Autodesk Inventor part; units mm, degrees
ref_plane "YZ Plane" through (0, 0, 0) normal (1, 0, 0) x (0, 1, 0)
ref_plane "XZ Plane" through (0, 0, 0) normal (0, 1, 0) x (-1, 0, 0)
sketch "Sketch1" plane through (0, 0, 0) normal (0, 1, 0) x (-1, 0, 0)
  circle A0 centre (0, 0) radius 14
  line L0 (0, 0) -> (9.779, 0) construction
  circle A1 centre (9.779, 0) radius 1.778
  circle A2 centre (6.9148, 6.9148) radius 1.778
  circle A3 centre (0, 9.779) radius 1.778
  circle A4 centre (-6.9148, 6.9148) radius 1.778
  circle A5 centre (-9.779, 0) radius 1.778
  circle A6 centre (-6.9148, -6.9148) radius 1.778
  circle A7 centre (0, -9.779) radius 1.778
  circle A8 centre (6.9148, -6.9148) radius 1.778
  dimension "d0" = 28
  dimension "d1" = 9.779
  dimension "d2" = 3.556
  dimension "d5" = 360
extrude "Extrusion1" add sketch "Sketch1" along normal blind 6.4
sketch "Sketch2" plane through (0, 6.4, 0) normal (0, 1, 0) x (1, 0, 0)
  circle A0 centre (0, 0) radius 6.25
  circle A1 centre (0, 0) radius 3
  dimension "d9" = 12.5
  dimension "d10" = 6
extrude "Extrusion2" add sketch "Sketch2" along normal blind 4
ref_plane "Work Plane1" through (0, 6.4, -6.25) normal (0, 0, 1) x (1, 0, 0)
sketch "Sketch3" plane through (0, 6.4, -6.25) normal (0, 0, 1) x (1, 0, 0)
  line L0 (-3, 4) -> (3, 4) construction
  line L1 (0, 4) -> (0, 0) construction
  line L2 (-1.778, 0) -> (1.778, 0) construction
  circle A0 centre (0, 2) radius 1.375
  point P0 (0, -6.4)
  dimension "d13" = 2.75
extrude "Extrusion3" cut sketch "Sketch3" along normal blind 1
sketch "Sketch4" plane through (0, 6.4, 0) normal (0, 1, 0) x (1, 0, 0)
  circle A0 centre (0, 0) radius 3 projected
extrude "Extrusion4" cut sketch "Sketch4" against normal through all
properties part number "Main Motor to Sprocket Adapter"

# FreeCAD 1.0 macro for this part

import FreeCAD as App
import Part
import Sketcher

V = App.Vector

doc = App.newDocument("Part")
body = doc.addObject("PartDesign::Body", "Body")

sketch1 = doc.addObject("Sketcher::SketchObject", "Sketch")
body.addObject(sketch1)
sketch1.AttachmentSupport = (doc.XZ_Plane, [""])
sketch1.MapMode = "FlatFace"
sketch1.addGeometry(Part.Circle(V(0, 0, 0), V(0, 0, 1), 14), False)
sketch1.addGeometry(Part.Circle(V(6.9, -6.9, 0), V(0, 0, 1), 1.8), False)
sketch1.addGeometry(Part.Circle(V(0, -9.8, 0), V(0, 0, 1), 1.8), False)
sketch1.addGeometry(Part.Circle(V(-6.9, -6.9, 0), V(0, 0, 1), 1.8), False)
sketch1.addGeometry(Part.Circle(V(9.8, 0, 0), V(0, 0, 1), 1.8), False)
sketch1.addGeometry(Part.Circle(V(6.9, 6.9, 0), V(0, 0, 1), 1.8), False)
sketch1.addGeometry(Part.Circle(V(-6.9, 6.9, 0), V(0, 0, 1), 1.8), False)
sketch1.addGeometry(Part.Circle(V(-9.8, 0, 0), V(0, 0, 1), 1.8), False)
sketch1.addGeometry(Part.Circle(V(0, 9.8, 0), V(0, 0, 1), 1.8), False)
sketch1.addConstraint(Sketcher.Constraint("Coincident", 0, 3, -1, 1))
sketch1.addConstraint(Sketcher.Constraint("Equal", 1, 2))
sketch1.addConstraint(Sketcher.Constraint("Equal", 2, 3))
sketch1.addConstraint(Sketcher.Constraint("Equal", 3, 4))
sketch1.addConstraint(Sketcher.Constraint("Equal", 4, 5))
sketch1.addConstraint(Sketcher.Constraint("Equal", 5, 6))
sketch1.addConstraint(Sketcher.Constraint("Equal", 6, 7))
sketch1.addConstraint(Sketcher.Constraint("Equal", 7, 8))
sketch1.addConstraint(Sketcher.Constraint("Symmetric", 3, 3, 5, 3, -1, 1))
sketch1.addConstraint(Sketcher.Constraint("Symmetric", 1, 3, 6, 3, -1, 1))
sketch1.addConstraint(Sketcher.Constraint("Symmetric", 4, 3, 7, 3, -1, 1))
sketch1.addConstraint(Sketcher.Constraint("Symmetric", 2, 3, 8, 3, -1, 1))
sketch1.addConstraint(Sketcher.Constraint("Symmetric", 1, 3, 3, 3, -2))
sketch1.addConstraint(Sketcher.Constraint("PointOnObject", 2, 3, -2))
sketch1.addConstraint(Sketcher.Constraint("PointOnObject", 4, 3, -1))
sketch1.addConstraint(Sketcher.Constraint("Diameter", 0, 28.0))
sketch1.addConstraint(Sketcher.Constraint("Diameter", 1, 3.556))
sketch1.addConstraint(Sketcher.Constraint("DistanceY", 2, 3, -1, 1, 9.779))
sketch1.addConstraint(Sketcher.Constraint("DistanceX", -1, 1, 4, 3, 9.779))
sketch1.addConstraint(Sketcher.Constraint("DistanceX", -1, 1, 1, 3, 6.9148))
sketch1.addConstraint(Sketcher.Constraint("DistanceY", 1, 3, -1, 1, 6.9148))
pad1 = doc.addObject("PartDesign::Pad", "Pad")
body.addObject(pad1)
pad1.Profile = sketch1
pad1.Length = 6.4
pad1.Reversed = True

sketch2 = doc.addObject("Sketcher::SketchObject", "Sketch001")
body.addObject(sketch2)
sketch2.AttachmentSupport = (doc.XZ_Plane, [""])
sketch2.MapMode = "FlatFace"
sketch2.AttachmentOffset = App.Placement(V(0, 0, -6.4), App.Rotation())
sketch2.addGeometry(Part.Circle(V(0, 0, 0), V(0, 0, 1), 6.2), False)
sketch2.addGeometry(Part.Circle(V(0, 0, 0), V(0, 0, 1), 3), False)
sketch2.addConstraint(Sketcher.Constraint("Coincident", 0, 3, -1, 1))
sketch2.addConstraint(Sketcher.Constraint("Coincident", 1, 3, -1, 1))
sketch2.addConstraint(Sketcher.Constraint("Diameter", 1, 6.0))
sketch2.addConstraint(Sketcher.Constraint("Diameter", 0, 12.5))
pad2 = doc.addObject("PartDesign::Pad", "Pad001")
body.addObject(pad2)
pad2.Profile = sketch2
pad2.Length = 4
pad2.Reversed = True

sketch3 = doc.addObject("Sketcher::SketchObject", "Sketch002")
body.addObject(sketch3)
sketch3.AttachmentSupport = (doc.XY_Plane, [""])
sketch3.MapMode = "FlatFace"
sketch3.AttachmentOffset = App.Placement(V(0, 0, -6.25), App.Rotation())
sketch3.addGeometry(Part.Circle(V(0, 8.4, 0), V(0, 0, 1), 1.4), False)
sketch3.addConstraint(Sketcher.Constraint("PointOnObject", 0, 3, -2))
sketch3.addConstraint(Sketcher.Constraint("Diameter", 0, 2.75))
sketch3.addConstraint(Sketcher.Constraint("DistanceY", -1, 1, 0, 3, 8.4))
pocket1 = doc.addObject("PartDesign::Pocket", "Pocket")
body.addObject(pocket1)
pocket1.Profile = sketch3
pocket1.Length = 1
pocket1.Reversed = True

sketch4 = doc.addObject("Sketcher::SketchObject", "Sketch003")
body.addObject(sketch4)
sketch4.AttachmentSupport = (doc.XZ_Plane, [""])
sketch4.MapMode = "FlatFace"
sketch4.AttachmentOffset = App.Placement(V(0, 0, -6.4), App.Rotation())
sketch4.addGeometry(Part.Circle(V(0, 0, 0), V(0, 0, 1), 3), False)
sketch4.addConstraint(Sketcher.Constraint("Coincident", 0, 3, -1, 1))
sketch4.addConstraint(Sketcher.Constraint("Diameter", 0, 6.0))
pocket2 = doc.addObject("PartDesign::Pocket", "Pocket001")
body.addObject(pocket2)
pocket2.Profile = sketch4
pocket2.Type = "ThroughAll"
pocket2.Reversed = True

doc.recompute()
